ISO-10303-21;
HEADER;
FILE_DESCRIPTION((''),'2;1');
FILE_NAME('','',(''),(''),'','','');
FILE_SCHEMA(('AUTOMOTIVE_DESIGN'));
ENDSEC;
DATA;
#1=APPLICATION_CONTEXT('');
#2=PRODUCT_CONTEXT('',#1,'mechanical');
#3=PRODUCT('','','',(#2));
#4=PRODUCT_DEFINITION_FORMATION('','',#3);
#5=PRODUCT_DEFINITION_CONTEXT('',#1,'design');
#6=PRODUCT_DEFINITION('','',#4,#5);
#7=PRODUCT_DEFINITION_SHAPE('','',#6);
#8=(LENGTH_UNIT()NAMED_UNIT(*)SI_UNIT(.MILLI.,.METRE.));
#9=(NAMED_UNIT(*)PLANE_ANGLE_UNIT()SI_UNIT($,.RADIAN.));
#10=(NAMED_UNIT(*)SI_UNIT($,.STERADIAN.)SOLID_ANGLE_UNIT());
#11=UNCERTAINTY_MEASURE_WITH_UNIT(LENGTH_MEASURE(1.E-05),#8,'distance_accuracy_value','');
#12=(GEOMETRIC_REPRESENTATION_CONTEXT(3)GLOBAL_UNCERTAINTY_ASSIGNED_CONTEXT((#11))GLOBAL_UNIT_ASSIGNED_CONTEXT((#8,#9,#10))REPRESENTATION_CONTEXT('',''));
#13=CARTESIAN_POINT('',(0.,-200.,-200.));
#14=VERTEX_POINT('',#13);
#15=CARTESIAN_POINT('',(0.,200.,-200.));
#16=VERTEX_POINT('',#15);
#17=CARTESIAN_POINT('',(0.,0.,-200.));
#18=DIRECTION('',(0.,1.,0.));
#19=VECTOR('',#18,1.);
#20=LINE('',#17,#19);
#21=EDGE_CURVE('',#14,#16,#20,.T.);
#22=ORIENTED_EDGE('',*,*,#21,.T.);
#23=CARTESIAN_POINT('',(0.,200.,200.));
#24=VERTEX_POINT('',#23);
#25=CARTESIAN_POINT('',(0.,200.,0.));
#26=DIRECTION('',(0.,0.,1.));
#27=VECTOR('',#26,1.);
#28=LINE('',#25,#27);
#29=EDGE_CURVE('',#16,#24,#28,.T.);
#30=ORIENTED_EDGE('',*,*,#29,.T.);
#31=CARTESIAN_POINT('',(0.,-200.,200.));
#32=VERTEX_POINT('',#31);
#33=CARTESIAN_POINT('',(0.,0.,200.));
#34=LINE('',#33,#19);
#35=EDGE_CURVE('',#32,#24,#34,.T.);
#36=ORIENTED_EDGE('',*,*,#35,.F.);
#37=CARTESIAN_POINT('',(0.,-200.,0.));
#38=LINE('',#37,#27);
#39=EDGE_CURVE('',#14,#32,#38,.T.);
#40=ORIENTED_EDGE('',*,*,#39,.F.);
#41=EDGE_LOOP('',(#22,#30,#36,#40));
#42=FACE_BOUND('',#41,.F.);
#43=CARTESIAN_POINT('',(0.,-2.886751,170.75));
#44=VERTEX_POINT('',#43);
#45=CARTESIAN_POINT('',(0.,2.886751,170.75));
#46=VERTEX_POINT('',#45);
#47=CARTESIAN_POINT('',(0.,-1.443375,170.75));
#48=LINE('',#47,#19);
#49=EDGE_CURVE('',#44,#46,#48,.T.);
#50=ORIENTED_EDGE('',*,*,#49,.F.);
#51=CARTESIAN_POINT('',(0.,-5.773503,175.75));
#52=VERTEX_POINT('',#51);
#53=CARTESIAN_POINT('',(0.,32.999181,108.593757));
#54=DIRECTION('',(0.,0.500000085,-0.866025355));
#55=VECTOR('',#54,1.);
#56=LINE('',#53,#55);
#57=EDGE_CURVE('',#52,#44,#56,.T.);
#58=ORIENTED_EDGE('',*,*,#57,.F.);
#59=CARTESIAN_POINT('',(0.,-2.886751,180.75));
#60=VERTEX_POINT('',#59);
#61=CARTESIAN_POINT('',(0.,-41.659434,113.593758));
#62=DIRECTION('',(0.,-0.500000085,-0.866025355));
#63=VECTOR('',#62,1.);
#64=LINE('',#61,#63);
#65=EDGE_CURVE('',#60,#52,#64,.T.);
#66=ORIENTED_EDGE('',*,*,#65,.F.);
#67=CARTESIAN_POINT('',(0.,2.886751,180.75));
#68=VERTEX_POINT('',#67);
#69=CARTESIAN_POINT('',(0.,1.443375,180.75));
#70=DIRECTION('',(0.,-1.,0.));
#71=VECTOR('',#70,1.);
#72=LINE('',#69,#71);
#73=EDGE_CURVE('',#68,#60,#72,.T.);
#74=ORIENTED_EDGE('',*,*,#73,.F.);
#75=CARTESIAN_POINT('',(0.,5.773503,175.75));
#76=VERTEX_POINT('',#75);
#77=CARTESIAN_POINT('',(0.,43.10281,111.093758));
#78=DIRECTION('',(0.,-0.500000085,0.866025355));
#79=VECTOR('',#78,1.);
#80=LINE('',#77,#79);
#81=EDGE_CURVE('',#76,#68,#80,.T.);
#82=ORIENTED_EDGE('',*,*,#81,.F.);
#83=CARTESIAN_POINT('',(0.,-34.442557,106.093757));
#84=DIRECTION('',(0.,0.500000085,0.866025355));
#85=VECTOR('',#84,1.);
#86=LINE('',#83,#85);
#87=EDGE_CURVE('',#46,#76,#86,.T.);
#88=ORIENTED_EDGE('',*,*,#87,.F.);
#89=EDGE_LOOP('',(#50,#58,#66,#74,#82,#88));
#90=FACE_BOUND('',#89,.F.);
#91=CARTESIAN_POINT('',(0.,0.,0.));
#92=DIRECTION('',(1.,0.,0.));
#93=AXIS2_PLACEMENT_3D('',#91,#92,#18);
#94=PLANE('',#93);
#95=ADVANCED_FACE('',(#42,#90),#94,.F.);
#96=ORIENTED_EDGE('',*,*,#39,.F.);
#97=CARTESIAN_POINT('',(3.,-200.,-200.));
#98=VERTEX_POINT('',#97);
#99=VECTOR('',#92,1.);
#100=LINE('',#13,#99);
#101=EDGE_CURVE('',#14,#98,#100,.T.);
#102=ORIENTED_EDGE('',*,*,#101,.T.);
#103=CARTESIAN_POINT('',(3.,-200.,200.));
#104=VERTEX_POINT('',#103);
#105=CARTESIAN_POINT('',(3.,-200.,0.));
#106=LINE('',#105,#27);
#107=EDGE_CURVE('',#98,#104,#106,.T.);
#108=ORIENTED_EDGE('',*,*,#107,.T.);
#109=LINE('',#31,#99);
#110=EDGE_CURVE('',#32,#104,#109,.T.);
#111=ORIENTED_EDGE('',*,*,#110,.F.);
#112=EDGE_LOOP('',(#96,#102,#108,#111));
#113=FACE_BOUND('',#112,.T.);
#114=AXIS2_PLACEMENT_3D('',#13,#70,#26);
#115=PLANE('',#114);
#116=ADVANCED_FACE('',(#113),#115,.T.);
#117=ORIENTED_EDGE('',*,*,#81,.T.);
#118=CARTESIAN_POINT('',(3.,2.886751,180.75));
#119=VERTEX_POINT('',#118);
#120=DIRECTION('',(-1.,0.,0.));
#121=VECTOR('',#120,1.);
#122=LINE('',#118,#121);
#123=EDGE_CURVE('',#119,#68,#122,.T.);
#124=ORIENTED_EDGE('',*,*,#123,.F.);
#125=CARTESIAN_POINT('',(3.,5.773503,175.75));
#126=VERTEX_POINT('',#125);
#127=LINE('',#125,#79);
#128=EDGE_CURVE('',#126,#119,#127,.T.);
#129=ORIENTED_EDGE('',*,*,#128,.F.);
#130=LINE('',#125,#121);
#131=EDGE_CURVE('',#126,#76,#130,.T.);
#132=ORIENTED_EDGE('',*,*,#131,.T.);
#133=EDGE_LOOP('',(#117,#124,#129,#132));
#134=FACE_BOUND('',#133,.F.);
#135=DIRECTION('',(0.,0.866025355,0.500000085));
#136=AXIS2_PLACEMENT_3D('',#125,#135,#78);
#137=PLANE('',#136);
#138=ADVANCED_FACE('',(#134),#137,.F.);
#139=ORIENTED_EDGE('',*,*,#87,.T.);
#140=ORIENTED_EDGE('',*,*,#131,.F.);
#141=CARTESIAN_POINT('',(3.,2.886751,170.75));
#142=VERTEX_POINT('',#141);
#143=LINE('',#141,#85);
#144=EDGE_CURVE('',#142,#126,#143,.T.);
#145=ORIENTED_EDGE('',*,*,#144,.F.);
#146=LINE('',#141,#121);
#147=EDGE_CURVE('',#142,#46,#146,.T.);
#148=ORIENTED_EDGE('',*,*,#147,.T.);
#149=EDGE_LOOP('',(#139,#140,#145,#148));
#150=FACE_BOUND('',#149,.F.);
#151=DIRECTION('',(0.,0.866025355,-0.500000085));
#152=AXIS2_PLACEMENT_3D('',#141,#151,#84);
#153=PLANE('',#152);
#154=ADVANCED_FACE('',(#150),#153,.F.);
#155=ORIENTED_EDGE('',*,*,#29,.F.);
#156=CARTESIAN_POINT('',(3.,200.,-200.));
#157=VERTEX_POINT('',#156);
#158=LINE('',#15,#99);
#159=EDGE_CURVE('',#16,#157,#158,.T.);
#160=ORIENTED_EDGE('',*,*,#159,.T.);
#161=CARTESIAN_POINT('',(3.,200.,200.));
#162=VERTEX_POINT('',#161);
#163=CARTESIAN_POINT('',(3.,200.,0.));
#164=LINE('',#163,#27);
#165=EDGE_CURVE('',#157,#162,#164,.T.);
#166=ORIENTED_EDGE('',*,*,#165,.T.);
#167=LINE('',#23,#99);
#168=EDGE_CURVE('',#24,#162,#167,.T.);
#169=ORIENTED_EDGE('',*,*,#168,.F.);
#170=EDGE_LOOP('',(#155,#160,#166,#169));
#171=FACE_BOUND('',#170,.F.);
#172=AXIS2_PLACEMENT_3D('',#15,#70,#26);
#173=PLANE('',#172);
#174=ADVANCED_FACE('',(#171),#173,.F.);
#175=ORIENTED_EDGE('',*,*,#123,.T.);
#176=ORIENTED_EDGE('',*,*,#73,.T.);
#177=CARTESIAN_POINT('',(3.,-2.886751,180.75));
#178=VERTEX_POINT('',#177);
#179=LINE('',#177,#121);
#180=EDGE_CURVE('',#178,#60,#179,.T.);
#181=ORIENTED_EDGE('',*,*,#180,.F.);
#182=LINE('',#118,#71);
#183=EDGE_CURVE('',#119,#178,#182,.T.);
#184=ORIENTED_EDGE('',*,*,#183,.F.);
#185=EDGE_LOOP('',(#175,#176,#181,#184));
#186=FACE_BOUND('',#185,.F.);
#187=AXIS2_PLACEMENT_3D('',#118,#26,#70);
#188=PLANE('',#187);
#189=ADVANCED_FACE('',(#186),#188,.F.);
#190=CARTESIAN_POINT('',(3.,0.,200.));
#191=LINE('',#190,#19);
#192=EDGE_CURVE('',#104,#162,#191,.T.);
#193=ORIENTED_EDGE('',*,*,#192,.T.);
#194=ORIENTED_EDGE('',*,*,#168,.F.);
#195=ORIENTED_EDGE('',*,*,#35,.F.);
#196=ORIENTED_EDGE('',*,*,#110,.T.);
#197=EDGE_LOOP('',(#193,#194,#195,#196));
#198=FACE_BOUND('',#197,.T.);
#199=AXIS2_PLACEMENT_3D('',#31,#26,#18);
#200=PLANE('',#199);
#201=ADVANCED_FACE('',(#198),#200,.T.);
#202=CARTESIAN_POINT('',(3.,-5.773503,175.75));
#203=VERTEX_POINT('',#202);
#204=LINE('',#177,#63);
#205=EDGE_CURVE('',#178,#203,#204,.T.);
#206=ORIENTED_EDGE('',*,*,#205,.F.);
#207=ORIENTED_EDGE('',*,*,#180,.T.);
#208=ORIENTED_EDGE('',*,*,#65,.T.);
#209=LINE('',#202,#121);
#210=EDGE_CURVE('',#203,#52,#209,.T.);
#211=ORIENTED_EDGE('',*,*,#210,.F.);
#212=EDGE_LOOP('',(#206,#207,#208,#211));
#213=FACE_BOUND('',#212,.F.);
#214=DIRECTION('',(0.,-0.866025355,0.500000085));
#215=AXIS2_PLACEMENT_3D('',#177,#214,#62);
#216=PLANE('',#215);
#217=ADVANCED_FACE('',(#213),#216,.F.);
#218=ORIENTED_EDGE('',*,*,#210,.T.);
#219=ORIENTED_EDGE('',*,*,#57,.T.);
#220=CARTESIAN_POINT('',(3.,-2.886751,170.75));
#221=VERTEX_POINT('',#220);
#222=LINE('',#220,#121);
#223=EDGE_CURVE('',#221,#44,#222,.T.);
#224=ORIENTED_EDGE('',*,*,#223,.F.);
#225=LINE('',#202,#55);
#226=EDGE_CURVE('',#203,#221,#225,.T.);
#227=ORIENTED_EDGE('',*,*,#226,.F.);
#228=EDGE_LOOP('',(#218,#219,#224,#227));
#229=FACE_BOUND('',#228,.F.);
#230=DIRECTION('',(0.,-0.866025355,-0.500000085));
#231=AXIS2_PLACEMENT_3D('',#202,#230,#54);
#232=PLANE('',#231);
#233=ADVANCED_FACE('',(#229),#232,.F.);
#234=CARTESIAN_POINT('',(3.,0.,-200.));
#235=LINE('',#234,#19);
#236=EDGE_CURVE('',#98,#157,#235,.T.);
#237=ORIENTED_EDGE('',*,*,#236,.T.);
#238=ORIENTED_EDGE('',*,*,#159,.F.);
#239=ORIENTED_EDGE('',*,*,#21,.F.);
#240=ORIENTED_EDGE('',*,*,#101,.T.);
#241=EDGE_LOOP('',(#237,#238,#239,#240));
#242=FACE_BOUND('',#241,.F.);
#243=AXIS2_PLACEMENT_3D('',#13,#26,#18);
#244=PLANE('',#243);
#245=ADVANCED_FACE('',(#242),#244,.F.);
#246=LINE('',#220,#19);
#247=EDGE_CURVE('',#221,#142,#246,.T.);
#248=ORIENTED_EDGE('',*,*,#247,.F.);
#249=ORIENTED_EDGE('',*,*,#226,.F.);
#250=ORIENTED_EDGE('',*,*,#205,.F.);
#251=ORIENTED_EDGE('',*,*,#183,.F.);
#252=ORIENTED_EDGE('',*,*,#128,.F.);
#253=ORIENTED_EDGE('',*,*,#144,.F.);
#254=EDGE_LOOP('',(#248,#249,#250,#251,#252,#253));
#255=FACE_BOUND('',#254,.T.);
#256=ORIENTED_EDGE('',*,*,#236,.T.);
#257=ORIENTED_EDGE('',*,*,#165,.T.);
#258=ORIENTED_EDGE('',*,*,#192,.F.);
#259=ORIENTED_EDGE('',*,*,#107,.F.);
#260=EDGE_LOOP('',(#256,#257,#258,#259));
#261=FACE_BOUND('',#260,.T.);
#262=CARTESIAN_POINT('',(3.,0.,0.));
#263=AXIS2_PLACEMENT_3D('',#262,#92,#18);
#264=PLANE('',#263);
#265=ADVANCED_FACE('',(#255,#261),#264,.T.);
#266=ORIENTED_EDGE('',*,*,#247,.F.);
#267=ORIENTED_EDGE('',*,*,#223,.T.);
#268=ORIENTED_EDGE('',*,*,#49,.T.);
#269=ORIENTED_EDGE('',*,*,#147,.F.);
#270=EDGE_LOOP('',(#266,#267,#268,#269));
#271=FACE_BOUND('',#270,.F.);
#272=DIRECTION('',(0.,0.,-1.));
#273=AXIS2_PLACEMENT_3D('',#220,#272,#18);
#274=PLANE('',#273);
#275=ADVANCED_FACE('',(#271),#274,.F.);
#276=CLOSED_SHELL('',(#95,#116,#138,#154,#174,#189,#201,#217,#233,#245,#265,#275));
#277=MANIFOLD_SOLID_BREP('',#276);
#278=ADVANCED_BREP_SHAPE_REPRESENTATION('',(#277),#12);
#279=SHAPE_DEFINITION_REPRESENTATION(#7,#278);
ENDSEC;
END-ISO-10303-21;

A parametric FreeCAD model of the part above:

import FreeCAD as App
import Part
import Sketcher
Q = App.Units.Quantity


def add_polygon(sketch, points):
    """Adds a closed chain of lines whose ends are joined by coincident constraints."""
    first, n = sketch.GeometryCount, len(points)
    for a, b in zip(points, points[1:] + points[:1]):
        sketch.addGeometry(Part.LineSegment(App.Vector(*a, 0), App.Vector(*b, 0)), False)
    for i in range(n):
        sketch.addConstraint(Sketcher.Constraint("Coincident", first + i, 2, first + (i + 1) % n, 1))

doc = App.newDocument("Part")
body = doc.addObject("PartDesign::Body", "Body")

# Sketch on YZ plane
sketch1 = body.newObject("Sketcher::SketchObject", "Sketch")
sketch1.AttachmentSupport = (doc.getObject("YZ_Plane"), [""])
sketch1.MapMode = "FlatFace"
add_polygon(sketch1, [(-200, 200), (-200, -200), (200, -200), (200, 200)])  # lines 0-3
sketch1.addConstraint(Sketcher.Constraint("Vertical", 0))
sketch1.addConstraint(Sketcher.Constraint("Horizontal", 1))
sketch1.addConstraint(Sketcher.Constraint("Vertical", 2))
sketch1.addConstraint(Sketcher.Constraint("Horizontal", 3))
sketch1.addConstraint(Sketcher.Constraint("Symmetric", 0, 2, 2, 2, -1, 1))
sketch1.addConstraint(Sketcher.Constraint("Equal", 3, 0))
sketch1.addConstraint(Sketcher.Constraint("DistanceX", 1, 1, 1, 2, Q("400 mm")))
pad1 = body.newObject("PartDesign::Pad", "Pad")
pad1.Profile = sketch1
pad1.Length = 3

# Sketch on YZ plane
sketch2 = body.newObject("Sketcher::SketchObject", "Sketch001")
sketch2.AttachmentSupport = (doc.getObject("YZ_Plane"), [""])
sketch2.MapMode = "FlatFace"
sketch2.AttachmentOffset = App.Placement(App.Vector(0, 0, 3), App.Rotation())
add_polygon(sketch2, [(2.886751, 180.75), (-2.886751, 180.75), (-5.773503, 175.75), (-2.886751, 170.75), (2.886751, 170.75), (5.773503, 175.75)])  # lines 0-5
sketch2.addConstraint(Sketcher.Constraint("Horizontal", 0))
sketch2.addConstraint(Sketcher.Constraint("Horizontal", 3))
sketch2.addConstraint(Sketcher.Constraint("Symmetric", 1, 2, 4, 2, -2))
sketch2.addConstraint(Sketcher.Constraint("Parallel", 1, 4))
sketch2.addConstraint(Sketcher.Constraint("Parallel", 2, 5))
sketch2.addConstraint(Sketcher.Constraint("Vertical", 0, 2, 2, 2))
sketch2.addConstraint(Sketcher.Constraint("Vertical", 3, 2, 5, 2))
sketch2.addConstraint(Sketcher.Constraint("Angle", 1, Q("-120.000006 deg")))
sketch2.addConstraint(Sketcher.Constraint("DistanceY", 1, 2, 0, 2, Q("5 mm")))
sketch2.addConstraint(Sketcher.Constraint("DistanceY", -1, 1, 0, 2, Q("180.75 mm")))
sketch2.addConstraint(Sketcher.Constraint("DistanceX", 0, 2, 0, 1, Q("5.773502 mm")))
pocket1 = body.newObject("PartDesign::Pocket", "Pocket")
pocket1.Profile = sketch2
pocket1.Length = 25

doc.recompute()
